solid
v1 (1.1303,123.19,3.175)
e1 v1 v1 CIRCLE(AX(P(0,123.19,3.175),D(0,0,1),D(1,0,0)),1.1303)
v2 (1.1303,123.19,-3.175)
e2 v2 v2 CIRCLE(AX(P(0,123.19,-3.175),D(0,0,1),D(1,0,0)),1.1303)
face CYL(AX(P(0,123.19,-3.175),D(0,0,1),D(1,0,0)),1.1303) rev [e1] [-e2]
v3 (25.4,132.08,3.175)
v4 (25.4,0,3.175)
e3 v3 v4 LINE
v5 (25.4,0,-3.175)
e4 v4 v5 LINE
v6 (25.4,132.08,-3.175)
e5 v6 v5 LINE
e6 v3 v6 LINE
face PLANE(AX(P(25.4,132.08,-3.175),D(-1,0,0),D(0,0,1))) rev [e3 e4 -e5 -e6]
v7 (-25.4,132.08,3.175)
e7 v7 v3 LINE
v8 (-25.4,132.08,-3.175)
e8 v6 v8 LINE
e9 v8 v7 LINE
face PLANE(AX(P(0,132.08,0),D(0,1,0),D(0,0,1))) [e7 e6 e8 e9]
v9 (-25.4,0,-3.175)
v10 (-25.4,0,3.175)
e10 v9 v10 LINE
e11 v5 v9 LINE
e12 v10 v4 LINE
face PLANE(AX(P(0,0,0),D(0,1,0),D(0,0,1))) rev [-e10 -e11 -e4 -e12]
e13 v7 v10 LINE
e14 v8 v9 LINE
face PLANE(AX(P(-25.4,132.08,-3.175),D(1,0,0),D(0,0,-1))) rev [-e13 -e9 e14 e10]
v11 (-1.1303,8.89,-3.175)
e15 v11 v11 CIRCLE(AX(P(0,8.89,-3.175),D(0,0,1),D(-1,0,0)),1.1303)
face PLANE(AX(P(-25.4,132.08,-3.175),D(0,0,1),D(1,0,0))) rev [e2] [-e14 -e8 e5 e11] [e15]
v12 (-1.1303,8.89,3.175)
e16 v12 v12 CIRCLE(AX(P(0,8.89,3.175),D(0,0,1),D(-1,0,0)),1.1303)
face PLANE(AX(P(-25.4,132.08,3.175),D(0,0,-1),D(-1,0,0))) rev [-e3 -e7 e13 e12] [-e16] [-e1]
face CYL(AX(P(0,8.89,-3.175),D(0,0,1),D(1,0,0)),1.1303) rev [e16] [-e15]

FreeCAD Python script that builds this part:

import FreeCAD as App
import Part
import Sketcher

V = App.Vector
Q = App.Units.Quantity

doc = App.newDocument("Part")
body = doc.addObject("PartDesign::Body", "Body")

sketch1 = body.newObject("Sketcher::SketchObject", "Sketch")
sketch1.AttachmentSupport = (doc.getObject("XZ_Plane"), [""])
sketch1.MapMode = "FlatFace"
sketch1.addGeometry([
    Part.LineSegment(V(-25, -3, 0), V(-25, 3, 0)),
    Part.LineSegment(V(-25, 3, 0), V(25, 3, 0)),
    Part.LineSegment(V(25, 3, 0), V(25, -3, 0)),
    Part.LineSegment(V(25, -3, 0), V(-25, -3, 0)),
], False)
sketch1.addConstraint([
    Sketcher.Constraint("Coincident", 0, 2, 1, 1),
    Sketcher.Constraint("Coincident", 1, 2, 2, 1),
    Sketcher.Constraint("Coincident", 2, 2, 3, 1),
    Sketcher.Constraint("Coincident", 3, 2, 0, 1),
    Sketcher.Constraint("Vertical", 0),
    Sketcher.Constraint("Horizontal", 1),
    Sketcher.Constraint("Vertical", 2),
    Sketcher.Constraint("Horizontal", 3),
    Sketcher.Constraint("Symmetric", 0, 2, 2, 2, -1, 1),
    Sketcher.Constraint("DistanceX", 1, 1, 1, 2, Q("2 in")),
    Sketcher.Constraint("DistanceY", 0, 1, 0, 2, Q("0.25 in")),
])
pad1 = body.newObject("PartDesign::Pad", "Pad")
pad1.Profile = sketch1
pad1.Length = Q("5.2 in")
pad1.Reversed = True

sketch2 = body.newObject("Sketcher::SketchObject", "Sketch001")
sketch2.AttachmentSupport = (doc.getObject("XY_Plane"), [""])
sketch2.MapMode = "FlatFace"
sketch2.AttachmentOffset = App.Placement(V(0, 0, 0.125 * 25.4), App.Rotation())
sketch2.addGeometry([
    Part.Circle(V(0, 123.2, 0), V(0, 0, 1), 1.1),
    Part.Circle(V(0, 8.9, 0), V(0, 0, 1), 1.1),
], False)
sketch2.addConstraint([
    Sketcher.Constraint("Equal", 0, 1),
    Sketcher.Constraint("PointOnObject", 0, 3, -2),
    Sketcher.Constraint("PointOnObject", 1, 3, -2),
    Sketcher.Constraint("Diameter", 0, Q("0.089 in")),
    Sketcher.Constraint("DistanceY", 1, 3, 0, 3, Q("4.5 in")),
    Sketcher.Constraint("DistanceY", -1, 1, 0, 3, Q("4.85 in")),
])
pocket1 = body.newObject("PartDesign::Pocket", "Pocket")
pocket1.Profile = sketch2
pocket1.Type = "ThroughAll"

doc.recompute()
